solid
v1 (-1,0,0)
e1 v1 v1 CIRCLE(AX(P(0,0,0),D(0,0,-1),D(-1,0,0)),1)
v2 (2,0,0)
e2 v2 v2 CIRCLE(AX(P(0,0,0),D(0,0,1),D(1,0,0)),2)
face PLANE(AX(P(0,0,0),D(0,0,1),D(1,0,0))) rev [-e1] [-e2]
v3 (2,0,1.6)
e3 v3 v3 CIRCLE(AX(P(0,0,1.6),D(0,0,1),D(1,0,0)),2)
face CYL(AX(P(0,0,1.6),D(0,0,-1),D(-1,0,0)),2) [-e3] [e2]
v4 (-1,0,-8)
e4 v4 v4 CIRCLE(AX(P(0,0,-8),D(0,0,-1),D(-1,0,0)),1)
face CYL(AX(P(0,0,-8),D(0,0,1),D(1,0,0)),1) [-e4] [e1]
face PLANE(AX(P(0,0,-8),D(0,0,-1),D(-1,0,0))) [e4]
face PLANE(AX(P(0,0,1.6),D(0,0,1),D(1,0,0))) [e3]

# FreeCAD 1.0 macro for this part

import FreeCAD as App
import Part
import Sketcher

V = App.Vector

doc = App.newDocument("Part")
params = doc.addObject("Spreadsheet::Sheet", "Params")
for row, (alias, value) in enumerate([
    ("sketch1_diameter", "4 mm"),
    ("pad1_length", "1.6 mm"),
    ("sketch2_diameter", "2 mm"),
    ("pad2_length", "8 mm"),
], start=1):
    params.set(f"A{row}", alias)
    params.set(f"B{row}", "=" + value)
    params.setAlias(f"B{row}", alias)

body = doc.addObject("PartDesign::Body", "Body")

sketch1 = body.newObject("Sketcher::SketchObject", "Sketch")
sketch1.AttachmentSupport = (doc.getObject("XY_Plane"), [""])
sketch1.MapMode = "FlatFace"
sketch1.addGeometry(Part.Circle(V(0, 0, 0), V(0, 0, 1), 2), False)
sketch1.addConstraint(Sketcher.Constraint("Coincident", 0, 3, -1, 1))
sketch1.addConstraint(Sketcher.Constraint("Diameter", 0, 4.0))
sketch1.setExpression("Constraints[1]", "Params.sketch1_diameter")
pad1 = body.newObject("PartDesign::Pad", "Pad")
pad1.Profile = sketch1
pad1.setExpression("Length", "Params.pad1_length")

sketch2 = body.newObject("Sketcher::SketchObject", "Sketch001")
sketch2.AttachmentSupport = (doc.getObject("XY_Plane"), [""])
sketch2.MapMode = "FlatFace"
sketch2.addGeometry(Part.Circle(V(0, 0, 0), V(0, 0, 1), 1), False)
sketch2.addConstraint(Sketcher.Constraint("Coincident", 0, 3, -1, 1))
sketch2.addConstraint(Sketcher.Constraint("Diameter", 0, 2.0))
sketch2.setExpression("Constraints[1]", "Params.sketch2_diameter")
pad2 = body.newObject("PartDesign::Pad", "Pad001")
pad2.Profile = sketch2
pad2.setExpression("Length", "Params.pad2_length")
pad2.Reversed = True

doc.recompute()
